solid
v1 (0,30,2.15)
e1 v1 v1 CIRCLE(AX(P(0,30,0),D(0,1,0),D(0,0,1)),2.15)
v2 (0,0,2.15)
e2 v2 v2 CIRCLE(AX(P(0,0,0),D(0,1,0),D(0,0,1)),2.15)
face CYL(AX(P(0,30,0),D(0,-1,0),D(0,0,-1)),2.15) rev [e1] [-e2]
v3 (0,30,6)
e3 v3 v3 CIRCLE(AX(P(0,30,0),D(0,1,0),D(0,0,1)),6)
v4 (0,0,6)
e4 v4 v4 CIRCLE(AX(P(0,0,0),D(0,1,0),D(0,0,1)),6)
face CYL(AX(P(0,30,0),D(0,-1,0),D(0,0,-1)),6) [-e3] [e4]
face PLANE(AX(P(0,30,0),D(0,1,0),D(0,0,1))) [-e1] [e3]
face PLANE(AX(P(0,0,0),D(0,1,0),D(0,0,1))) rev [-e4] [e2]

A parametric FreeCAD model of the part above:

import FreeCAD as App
import Part
import Sketcher
from FreeCAD import Vector
Q = App.Units.Quantity

doc = App.newDocument("Part")
body = doc.addObject("PartDesign::Body", "Body")

# Sketch on XZ plane
sketch1 = body.newObject("Sketcher::SketchObject", "Sketch")
sketch1.AttachmentSupport = (doc.getObject("XZ_Plane"), [""])
sketch1.MapMode = "FlatFace"
sketch1.addGeometry([
    Part.Circle(Vector(0, 0, 0), Vector(0, 0, 1), 6),
    Part.Circle(Vector(0, 0, 0), Vector(0, 0, 1), 2.15),
], False)
sketch1.addConstraint([
    Sketcher.Constraint("Coincident", 0, 3, -1, 1),
    Sketcher.Constraint("Coincident", 1, 3, -1, 1),
    Sketcher.Constraint("Diameter", 0, Q("12 mm")),
    Sketcher.Constraint("Diameter", 1, Q("4.3 mm")),
])
pad1 = body.newObject("PartDesign::Pad", "Pad")
pad1.Profile = sketch1
pad1.Length = 30
pad1.Reversed = True

doc.recompute()
